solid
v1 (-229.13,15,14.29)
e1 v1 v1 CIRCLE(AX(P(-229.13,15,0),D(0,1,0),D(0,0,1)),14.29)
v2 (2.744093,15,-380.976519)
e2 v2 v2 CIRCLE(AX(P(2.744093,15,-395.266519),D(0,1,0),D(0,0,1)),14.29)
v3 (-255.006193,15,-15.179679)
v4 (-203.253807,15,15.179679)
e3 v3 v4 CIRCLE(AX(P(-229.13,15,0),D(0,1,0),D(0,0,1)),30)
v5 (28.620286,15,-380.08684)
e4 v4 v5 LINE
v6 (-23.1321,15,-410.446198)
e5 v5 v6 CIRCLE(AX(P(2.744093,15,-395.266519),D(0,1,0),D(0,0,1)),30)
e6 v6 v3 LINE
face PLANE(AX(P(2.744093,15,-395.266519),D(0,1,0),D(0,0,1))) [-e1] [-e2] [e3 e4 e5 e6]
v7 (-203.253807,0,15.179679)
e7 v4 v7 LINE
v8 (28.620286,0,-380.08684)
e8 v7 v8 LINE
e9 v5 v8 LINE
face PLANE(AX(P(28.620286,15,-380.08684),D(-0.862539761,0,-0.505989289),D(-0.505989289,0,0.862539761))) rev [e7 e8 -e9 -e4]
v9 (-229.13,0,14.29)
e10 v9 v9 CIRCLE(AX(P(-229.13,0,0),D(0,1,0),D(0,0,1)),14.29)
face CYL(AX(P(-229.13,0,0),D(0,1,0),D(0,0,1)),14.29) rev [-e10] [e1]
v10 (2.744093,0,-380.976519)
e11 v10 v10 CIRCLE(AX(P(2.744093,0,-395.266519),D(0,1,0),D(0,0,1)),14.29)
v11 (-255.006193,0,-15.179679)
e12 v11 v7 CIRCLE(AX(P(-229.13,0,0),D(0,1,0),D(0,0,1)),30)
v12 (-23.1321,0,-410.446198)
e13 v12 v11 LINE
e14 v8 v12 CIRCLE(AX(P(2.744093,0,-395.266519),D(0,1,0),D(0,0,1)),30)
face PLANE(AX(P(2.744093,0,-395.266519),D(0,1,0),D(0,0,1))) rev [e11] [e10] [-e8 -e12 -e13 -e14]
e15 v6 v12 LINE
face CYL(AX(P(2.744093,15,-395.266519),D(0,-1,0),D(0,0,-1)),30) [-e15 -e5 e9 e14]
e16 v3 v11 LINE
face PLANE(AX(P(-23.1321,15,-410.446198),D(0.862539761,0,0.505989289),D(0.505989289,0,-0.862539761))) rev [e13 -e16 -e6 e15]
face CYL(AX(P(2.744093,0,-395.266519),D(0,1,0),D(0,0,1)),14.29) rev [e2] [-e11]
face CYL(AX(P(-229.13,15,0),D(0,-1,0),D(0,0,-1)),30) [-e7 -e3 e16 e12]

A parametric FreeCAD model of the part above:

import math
import FreeCAD as App
import Part
import Sketcher

V = App.Vector

doc = App.newDocument("Part")
params = doc.addObject("Spreadsheet::Sheet", "Params")
for row, (alias, value) in enumerate([
    ("sketch1_radius", "30 mm"),
    ("pad1_length", "15 mm"),
    ("sketch2_diameter", "28.58 mm"),
], start=1):
    params.set(f"A{row}", alias)
    params.set(f"B{row}", "=" + value)
    params.setAlias(f"B{row}", alias)

body = doc.addObject("PartDesign::Body", "Body")

# Sketch on XZ plane
sketch1 = doc.addObject("Sketcher::SketchObject", "Sketch")
body.addObject(sketch1)
sketch1.AttachmentSupport = (doc.XZ_Plane, [""])
sketch1.MapMode = "FlatFace"
sketch1.addGeometry(Part.LineSegment(V(-203, 15, 0), V(29, -380, 0)), False)
sketch1.addGeometry(Part.ArcOfCircle(Part.Circle(V(3, -395, 0), V(0, 0, 1), 30), math.radians(-150), math.radians(30)), False)
sketch1.addGeometry(Part.LineSegment(V(-23, -410, 0), V(-255, -15, 0)), False)
sketch1.addGeometry(Part.ArcOfCircle(Part.Circle(V(-229, 0, 0), V(0, 0, 1), 30), math.radians(30), math.radians(210)), False)
sketch1.addConstraint(Sketcher.Constraint("Tangent", 0, 2, 1, 2))
sketch1.addConstraint(Sketcher.Constraint("Tangent", 1, 1, 2, 1))
sketch1.addConstraint(Sketcher.Constraint("Tangent", 2, 2, 3, 2))
sketch1.addConstraint(Sketcher.Constraint("Tangent", 3, 1, 0, 1))
sketch1.addConstraint(Sketcher.Constraint("Equal", 1, 3))
sketch1.addConstraint(Sketcher.Constraint("PointOnObject", 3, 3, -1))
sketch1.addConstraint(Sketcher.Constraint("Radius", 1, 30.0))
sketch1.addConstraint(Sketcher.Constraint("DistanceX", 3, 3, -1, 1, 229.13))
sketch1.addConstraint(Sketcher.Constraint("DistanceX", 1, 1, -1, 1, 23.1321))
sketch1.addConstraint(Sketcher.Constraint("DistanceY", 1, 3, -1, 1, 395.266519))
sketch1.setExpression("Constraints[6]", "Params.sketch1_radius")
pad1 = doc.addObject("PartDesign::Pad", "Pad")
body.addObject(pad1)
pad1.Profile = sketch1
pad1.setExpression("Length", "Params.pad1_length")
pad1.Reversed = True

# Sketch on XZ plane
sketch2 = doc.addObject("Sketcher::SketchObject", "Sketch001")
body.addObject(sketch2)
sketch2.AttachmentSupport = (doc.XZ_Plane, [""])
sketch2.MapMode = "FlatFace"
sketch2.AttachmentOffset = App.Placement(V(0, 0, -15), App.Rotation())
sketch2.addGeometry(Part.Circle(V(-229, 0, 0), V(0, 0, 1), 14), False)
sketch2.addGeometry(Part.Circle(V(3, -395, 0), V(0, 0, 1), 14), False)
sketch2.addConstraint(Sketcher.Constraint("Equal", 0, 1))
sketch2.addConstraint(Sketcher.Constraint("PointOnObject", 0, 3, -1))
sketch2.addConstraint(Sketcher.Constraint("Diameter", 0, 28.58))
sketch2.addConstraint(Sketcher.Constraint("DistanceX", 0, 3, -1, 1, 229.13))
sketch2.addConstraint(Sketcher.Constraint("DistanceY", 1, 3, -1, 1, 395.266519))
sketch2.addConstraint(Sketcher.Constraint("DistanceX", -1, 1, 1, 3, 2.744093))
sketch2.setExpression("Constraints[2]", "Params.sketch2_diameter")
pocket1 = doc.addObject("PartDesign::Pocket", "Pocket")
body.addObject(pocket1)
pocket1.Profile = sketch2
pocket1.Type = "ThroughAll"
pocket1.Reversed = True

doc.recompute()
